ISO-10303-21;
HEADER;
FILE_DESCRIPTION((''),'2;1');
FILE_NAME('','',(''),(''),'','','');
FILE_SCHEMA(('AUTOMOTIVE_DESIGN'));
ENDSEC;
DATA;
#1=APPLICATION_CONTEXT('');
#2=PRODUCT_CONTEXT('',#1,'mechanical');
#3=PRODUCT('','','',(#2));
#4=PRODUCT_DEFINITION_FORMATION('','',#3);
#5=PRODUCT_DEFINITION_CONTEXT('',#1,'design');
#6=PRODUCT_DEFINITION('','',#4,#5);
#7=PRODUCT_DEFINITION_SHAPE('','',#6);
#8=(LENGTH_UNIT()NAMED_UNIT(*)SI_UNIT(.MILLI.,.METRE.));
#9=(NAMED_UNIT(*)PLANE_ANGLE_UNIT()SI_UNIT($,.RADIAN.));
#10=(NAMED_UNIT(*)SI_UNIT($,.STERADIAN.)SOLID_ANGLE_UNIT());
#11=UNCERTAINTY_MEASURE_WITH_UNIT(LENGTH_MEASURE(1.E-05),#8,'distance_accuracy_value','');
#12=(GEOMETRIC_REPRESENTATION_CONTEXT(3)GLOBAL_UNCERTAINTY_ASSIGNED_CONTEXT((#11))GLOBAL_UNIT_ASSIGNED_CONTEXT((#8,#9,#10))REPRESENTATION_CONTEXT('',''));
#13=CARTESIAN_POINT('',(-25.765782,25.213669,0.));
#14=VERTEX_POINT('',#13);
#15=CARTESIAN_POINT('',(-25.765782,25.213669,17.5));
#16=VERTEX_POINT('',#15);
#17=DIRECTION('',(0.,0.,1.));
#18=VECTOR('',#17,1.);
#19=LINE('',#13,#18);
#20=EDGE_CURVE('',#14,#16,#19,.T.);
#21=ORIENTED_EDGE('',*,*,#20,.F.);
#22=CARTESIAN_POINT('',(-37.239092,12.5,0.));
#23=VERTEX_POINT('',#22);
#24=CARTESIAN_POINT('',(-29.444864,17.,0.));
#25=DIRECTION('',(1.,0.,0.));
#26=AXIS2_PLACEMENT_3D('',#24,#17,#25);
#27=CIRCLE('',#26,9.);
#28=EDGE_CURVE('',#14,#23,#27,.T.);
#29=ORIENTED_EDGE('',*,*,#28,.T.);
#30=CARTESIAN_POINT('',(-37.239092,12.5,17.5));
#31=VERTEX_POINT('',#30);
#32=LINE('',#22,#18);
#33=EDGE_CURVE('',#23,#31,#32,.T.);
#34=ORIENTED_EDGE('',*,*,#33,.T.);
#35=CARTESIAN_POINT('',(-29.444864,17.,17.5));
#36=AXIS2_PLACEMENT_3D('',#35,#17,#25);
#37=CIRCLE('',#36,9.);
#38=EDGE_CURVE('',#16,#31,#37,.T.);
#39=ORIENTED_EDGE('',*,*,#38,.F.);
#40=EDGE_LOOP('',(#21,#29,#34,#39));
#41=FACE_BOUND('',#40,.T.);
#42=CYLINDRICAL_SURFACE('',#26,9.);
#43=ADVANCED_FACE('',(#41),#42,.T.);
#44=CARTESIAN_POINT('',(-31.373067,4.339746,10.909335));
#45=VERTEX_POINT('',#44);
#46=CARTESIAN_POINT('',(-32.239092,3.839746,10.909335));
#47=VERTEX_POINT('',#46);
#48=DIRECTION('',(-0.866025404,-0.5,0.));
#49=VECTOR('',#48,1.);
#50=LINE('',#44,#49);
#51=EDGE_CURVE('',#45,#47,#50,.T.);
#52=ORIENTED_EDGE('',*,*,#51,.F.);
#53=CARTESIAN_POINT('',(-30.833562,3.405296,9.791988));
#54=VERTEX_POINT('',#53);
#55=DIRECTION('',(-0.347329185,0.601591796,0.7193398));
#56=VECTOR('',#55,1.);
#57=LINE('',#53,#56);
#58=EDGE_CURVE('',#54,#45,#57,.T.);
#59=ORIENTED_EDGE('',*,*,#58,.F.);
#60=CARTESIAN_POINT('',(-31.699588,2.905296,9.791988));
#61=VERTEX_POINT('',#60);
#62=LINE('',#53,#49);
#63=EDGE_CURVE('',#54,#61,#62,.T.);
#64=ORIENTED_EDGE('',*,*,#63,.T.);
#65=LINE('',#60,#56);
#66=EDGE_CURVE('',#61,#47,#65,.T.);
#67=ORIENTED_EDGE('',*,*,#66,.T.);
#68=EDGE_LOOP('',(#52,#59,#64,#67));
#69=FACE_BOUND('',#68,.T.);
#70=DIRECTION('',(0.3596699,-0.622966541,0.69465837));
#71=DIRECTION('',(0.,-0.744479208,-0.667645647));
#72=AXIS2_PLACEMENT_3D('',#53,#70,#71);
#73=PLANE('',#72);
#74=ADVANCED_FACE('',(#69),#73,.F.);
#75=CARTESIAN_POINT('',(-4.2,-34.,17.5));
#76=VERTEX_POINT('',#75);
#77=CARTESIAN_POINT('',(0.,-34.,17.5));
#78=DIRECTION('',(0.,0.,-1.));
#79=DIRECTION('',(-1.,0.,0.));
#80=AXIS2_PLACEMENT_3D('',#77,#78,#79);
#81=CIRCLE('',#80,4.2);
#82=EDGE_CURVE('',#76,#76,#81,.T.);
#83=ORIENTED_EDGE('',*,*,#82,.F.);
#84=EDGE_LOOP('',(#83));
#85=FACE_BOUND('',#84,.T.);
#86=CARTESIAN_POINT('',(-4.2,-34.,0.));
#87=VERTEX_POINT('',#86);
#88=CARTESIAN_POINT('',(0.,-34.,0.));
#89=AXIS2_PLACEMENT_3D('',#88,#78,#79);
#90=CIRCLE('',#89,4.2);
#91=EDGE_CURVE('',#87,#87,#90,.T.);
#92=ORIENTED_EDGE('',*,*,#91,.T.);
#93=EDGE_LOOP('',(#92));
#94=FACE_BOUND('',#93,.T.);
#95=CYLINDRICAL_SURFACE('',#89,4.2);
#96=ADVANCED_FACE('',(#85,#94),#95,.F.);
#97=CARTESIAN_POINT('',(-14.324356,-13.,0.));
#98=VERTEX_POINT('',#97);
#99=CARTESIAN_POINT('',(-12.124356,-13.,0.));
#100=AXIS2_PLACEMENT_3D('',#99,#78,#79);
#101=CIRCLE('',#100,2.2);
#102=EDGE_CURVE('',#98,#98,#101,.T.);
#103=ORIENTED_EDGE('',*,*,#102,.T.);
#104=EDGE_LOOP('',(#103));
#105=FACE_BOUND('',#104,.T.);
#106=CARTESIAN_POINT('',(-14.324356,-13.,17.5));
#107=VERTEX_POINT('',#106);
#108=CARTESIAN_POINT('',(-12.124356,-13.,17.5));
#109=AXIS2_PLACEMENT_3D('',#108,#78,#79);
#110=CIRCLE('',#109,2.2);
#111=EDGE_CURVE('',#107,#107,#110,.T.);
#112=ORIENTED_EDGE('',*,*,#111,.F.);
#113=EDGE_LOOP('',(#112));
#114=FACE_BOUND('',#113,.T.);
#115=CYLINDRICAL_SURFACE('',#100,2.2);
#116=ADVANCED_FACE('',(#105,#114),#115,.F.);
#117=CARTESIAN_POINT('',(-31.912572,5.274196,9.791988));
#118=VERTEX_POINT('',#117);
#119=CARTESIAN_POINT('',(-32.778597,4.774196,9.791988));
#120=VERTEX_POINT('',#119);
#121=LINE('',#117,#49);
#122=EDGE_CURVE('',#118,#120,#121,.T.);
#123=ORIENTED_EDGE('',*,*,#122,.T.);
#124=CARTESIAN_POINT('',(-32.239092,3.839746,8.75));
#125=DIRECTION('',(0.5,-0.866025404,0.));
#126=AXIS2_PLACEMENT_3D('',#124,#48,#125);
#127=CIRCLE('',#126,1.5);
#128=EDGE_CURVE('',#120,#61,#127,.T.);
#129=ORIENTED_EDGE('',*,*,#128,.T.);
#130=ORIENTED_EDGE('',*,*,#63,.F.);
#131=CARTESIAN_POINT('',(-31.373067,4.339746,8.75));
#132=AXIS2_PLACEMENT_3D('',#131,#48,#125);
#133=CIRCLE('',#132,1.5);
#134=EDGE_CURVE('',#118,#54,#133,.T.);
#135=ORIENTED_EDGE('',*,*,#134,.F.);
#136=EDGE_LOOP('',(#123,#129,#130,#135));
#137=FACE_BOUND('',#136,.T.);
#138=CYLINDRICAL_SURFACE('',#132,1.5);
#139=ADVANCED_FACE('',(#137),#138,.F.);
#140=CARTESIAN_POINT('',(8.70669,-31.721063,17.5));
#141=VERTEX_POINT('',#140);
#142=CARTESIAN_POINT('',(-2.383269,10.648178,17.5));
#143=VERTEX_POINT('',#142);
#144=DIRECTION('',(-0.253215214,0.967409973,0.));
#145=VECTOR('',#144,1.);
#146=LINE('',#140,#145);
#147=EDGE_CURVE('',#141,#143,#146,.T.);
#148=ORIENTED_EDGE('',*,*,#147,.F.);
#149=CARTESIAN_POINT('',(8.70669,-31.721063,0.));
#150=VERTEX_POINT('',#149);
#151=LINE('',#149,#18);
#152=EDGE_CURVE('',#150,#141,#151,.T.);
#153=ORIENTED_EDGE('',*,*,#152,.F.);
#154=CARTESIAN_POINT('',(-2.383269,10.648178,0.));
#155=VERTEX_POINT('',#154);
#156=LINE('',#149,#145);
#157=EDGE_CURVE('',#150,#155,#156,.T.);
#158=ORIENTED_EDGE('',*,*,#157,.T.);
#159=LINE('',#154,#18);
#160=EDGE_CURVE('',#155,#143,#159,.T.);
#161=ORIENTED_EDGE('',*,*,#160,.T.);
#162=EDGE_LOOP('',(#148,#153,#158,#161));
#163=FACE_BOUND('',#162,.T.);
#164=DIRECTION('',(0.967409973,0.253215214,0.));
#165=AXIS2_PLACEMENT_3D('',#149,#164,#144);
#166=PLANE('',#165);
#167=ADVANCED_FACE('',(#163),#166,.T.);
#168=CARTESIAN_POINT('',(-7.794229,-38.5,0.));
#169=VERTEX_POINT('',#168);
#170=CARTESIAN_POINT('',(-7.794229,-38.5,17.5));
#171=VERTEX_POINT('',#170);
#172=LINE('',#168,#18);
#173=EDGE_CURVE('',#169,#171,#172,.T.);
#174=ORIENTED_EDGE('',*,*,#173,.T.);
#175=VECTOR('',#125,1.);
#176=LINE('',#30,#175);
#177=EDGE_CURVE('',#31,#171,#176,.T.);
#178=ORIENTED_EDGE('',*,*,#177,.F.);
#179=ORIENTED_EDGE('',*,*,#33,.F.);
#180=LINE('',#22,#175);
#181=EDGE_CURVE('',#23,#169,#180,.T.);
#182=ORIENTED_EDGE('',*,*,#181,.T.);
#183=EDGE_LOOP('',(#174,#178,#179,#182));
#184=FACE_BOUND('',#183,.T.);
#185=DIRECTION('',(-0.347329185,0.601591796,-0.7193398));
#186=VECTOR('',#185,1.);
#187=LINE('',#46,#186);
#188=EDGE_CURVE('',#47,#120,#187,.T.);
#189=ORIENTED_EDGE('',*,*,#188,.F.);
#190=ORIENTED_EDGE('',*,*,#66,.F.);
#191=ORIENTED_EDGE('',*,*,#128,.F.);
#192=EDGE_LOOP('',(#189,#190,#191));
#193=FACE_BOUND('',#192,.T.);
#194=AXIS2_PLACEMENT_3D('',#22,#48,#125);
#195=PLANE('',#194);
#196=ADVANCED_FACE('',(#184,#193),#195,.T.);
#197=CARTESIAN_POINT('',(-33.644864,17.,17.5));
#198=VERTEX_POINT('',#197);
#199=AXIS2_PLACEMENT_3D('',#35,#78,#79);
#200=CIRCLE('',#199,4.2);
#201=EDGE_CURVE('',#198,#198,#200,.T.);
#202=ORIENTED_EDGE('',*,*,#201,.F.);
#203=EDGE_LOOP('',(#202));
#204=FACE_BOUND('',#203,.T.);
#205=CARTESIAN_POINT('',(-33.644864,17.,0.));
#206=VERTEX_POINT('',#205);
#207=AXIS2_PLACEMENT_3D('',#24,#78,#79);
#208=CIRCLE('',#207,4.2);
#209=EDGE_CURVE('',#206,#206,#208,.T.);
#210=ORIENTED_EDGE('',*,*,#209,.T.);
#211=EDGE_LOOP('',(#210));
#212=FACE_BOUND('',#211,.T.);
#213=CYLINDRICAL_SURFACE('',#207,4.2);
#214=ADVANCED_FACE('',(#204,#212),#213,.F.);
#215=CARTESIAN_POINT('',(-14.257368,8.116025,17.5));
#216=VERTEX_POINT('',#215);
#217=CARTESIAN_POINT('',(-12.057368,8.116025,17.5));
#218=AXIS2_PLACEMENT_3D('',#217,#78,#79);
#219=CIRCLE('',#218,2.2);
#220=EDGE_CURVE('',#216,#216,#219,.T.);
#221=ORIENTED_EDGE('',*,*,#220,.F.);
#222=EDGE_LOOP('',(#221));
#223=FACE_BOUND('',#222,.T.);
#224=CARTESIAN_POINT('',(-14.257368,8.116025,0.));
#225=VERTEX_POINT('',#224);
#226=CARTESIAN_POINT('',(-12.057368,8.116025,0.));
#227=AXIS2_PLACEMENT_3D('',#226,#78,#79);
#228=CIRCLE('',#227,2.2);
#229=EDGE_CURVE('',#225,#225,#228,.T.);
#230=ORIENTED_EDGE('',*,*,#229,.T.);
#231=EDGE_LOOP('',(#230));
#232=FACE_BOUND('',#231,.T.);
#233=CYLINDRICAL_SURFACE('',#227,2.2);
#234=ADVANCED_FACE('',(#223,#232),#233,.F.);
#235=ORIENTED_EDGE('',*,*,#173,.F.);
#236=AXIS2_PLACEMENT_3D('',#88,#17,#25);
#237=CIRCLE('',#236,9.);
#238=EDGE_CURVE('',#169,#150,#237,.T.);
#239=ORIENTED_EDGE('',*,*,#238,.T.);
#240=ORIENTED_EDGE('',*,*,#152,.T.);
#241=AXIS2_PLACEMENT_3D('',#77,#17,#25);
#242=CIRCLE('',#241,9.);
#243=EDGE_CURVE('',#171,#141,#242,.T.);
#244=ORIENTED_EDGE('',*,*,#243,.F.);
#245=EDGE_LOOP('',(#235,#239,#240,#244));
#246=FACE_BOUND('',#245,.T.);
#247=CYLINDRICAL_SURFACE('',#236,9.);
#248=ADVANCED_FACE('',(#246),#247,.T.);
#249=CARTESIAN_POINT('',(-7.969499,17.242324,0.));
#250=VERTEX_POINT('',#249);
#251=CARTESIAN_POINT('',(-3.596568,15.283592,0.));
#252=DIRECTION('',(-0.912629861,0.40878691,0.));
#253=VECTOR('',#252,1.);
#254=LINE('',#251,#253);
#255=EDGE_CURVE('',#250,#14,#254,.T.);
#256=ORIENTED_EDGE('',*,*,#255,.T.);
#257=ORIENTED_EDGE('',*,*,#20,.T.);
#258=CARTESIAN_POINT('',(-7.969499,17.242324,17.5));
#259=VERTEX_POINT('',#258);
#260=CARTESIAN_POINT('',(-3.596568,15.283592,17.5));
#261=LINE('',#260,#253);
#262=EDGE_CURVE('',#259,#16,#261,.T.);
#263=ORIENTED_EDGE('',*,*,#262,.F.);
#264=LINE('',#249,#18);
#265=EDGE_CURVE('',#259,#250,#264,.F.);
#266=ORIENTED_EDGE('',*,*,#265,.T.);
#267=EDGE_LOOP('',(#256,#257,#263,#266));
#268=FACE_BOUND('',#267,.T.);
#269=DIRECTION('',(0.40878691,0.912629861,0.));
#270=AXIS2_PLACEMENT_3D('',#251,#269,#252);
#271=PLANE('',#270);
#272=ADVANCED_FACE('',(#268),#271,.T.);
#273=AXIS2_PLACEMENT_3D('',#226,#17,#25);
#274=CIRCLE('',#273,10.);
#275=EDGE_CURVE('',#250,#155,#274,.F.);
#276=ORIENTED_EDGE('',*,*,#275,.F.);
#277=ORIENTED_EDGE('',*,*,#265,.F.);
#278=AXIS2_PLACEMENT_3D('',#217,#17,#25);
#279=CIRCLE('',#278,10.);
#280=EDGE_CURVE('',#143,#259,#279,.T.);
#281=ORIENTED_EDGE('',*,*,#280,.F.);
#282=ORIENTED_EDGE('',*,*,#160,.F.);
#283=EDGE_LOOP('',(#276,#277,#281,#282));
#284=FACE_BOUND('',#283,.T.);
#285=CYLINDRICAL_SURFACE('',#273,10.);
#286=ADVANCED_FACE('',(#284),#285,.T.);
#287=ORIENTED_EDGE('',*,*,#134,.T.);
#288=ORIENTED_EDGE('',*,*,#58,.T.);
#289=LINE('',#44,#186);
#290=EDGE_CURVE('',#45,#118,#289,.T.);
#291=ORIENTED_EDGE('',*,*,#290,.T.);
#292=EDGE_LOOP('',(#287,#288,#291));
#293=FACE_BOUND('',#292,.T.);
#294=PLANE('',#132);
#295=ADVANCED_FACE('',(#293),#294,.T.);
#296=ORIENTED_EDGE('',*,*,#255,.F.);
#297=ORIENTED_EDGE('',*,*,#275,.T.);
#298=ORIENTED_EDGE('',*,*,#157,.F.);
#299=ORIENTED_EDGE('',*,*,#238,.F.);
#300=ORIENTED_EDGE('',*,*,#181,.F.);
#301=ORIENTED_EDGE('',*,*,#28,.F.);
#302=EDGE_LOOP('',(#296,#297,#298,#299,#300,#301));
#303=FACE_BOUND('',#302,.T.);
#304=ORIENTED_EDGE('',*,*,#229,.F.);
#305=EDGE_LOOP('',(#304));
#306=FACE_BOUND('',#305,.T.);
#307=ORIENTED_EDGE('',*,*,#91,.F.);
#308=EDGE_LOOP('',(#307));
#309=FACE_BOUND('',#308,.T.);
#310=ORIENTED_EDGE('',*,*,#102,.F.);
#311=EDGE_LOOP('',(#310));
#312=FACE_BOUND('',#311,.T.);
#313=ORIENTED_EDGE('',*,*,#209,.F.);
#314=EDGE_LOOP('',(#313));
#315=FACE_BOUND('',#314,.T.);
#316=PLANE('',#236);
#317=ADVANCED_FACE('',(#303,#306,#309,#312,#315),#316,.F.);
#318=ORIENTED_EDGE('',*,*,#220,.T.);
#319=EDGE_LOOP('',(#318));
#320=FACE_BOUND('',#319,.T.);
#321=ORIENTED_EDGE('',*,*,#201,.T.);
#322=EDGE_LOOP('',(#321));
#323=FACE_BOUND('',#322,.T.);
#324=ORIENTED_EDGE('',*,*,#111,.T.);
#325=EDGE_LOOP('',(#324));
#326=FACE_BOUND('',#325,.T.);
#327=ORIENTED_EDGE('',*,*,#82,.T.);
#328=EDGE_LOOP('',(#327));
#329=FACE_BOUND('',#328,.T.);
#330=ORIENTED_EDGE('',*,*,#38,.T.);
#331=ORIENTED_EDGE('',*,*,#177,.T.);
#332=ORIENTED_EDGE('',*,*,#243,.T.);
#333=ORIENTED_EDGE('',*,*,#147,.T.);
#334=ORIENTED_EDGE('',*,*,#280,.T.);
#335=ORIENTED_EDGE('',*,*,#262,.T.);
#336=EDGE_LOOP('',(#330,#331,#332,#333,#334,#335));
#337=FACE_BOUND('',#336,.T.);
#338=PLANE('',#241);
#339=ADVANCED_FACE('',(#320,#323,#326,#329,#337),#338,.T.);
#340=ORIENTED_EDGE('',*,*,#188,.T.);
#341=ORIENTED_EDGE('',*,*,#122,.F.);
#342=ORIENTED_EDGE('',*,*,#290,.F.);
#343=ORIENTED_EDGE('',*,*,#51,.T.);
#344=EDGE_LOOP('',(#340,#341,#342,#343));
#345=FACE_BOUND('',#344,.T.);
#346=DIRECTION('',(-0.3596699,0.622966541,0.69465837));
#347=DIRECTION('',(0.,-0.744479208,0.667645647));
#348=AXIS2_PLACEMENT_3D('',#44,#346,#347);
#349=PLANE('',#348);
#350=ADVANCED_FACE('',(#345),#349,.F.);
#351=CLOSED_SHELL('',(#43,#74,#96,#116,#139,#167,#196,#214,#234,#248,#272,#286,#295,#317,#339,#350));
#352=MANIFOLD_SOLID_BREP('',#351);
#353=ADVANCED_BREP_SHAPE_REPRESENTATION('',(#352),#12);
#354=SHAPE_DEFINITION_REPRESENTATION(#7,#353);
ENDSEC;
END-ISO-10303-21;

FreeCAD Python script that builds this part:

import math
import FreeCAD as App
import Part
import Sketcher
Q = App.Units.Quantity


def edges_at(feature, points):
    """Names of the edges that pass closest to the given points."""
    edges = feature.Shape.Edges
    near = lambda p: min(range(len(edges)), key=lambda i: edges[i].distToShape(Part.Vertex(*p))[0])
    return sorted({f"Edge{near(p) + 1}" for p in points})

doc = App.newDocument("Part")
body = doc.addObject("PartDesign::Body", "Body")

# Sketch on XY plane
sketch1 = body.newObject("Sketcher::SketchObject", "Sketch")
sketch1.AttachmentSupport = (doc.getObject("XY_Plane"), [""])
sketch1.MapMode = "FlatFace"
sketch1.AttachmentOffset = App.Placement(App.Vector(0, 0, 17.5), App.Rotation())
sketch1.addGeometry([
    Part.LineSegment(App.Vector(9, -32, 0), App.Vector(-4, 15, 0)),  # 0
    Part.LineSegment(App.Vector(-4, 15, 0), App.Vector(-26, 25, 0)),  # 1
    Part.ArcOfCircle(Part.Circle(App.Vector(-29, 17, 0), App.Vector(0, 0, 1), 9), math.radians(66), math.radians(210)),  # 2
    Part.LineSegment(App.Vector(-37, 12, 0), App.Vector(-8, -38, 0)),  # 3
    Part.ArcOfCircle(Part.Circle(App.Vector(0, -34, 0), App.Vector(0, 0, 1), 9), math.radians(-150), math.radians(15)),  # 4
], False)
sketch1.addConstraint([
    Sketcher.Constraint("Coincident", 0, 2, 1, 1),
    Sketcher.Constraint("Tangent", 1, 2, 2, 1),
    Sketcher.Constraint("Tangent", 2, 2, 3, 1),
    Sketcher.Constraint("Tangent", 3, 2, 4, 1),
    Sketcher.Constraint("Tangent", 4, 2, 0, 1),
    Sketcher.Constraint("Equal", 2, 4),
    Sketcher.Constraint("PointOnObject", 4, 3, -2),
    Sketcher.Constraint("Radius", 2, 9.0),
    Sketcher.Constraint("Angle", 3, Q("-60 deg")),
    Sketcher.Constraint("DistanceY", -1, 1, 2, 3, 17.0),
    Sketcher.Constraint("DistanceY", 4, 3, -1, 1, 34.0),
    Sketcher.Constraint("DistanceX", 1, 2, -1, 1, 25.765782),
    Sketcher.Constraint("DistanceX", -1, 1, 4, 2, 8.70669),
])
pad1 = body.newObject("PartDesign::Pad", "Pad")
pad1.Profile = sketch1
pad1.Length = 17.5
pad1.Reversed = True

# Sketch on an angled plane
sketch2 = body.newObject("Sketcher::SketchObject", "Sketch001")
sketch2.Placement = App.Placement(App.Vector(-22.51666, -13, 0), App.Rotation(App.Vector(0, 0, 1), App.Vector(-0.5, 0.866025404, 0), App.Vector(-0.866025404, -0.5, 0), "ZXY"))
sketch2.addGeometry([
    Part.LineSegment(App.Vector(9.8, 18.4, 0), App.Vector(10.9, 19.4, 0)),
    Part.LineSegment(App.Vector(10.9, 19.4, 0), App.Vector(9.8, 20.5, 0)),
    Part.ArcOfCircle(Part.Circle(App.Vector(8.8, 19.4, 0), App.Vector(0, 0, 1), 1.5), math.radians(46), math.radians(314)),
], False)
sketch2.addConstraint([
    Sketcher.Constraint("Coincident", 0, 2, 1, 1),
    Sketcher.Constraint("Tangent", 1, 2, 2, 1),
    Sketcher.Constraint("Tangent", 2, 2, 0, 1),
    Sketcher.Constraint("Horizontal", 2, 3, 0, 2),
    Sketcher.Constraint("Radius", 2, 1.5),
    Sketcher.Constraint("Angle", 0, Q("44 deg")),
    Sketcher.Constraint("DistanceX", -1, 1, 2, 3, 8.75),
    Sketcher.Constraint("DistanceY", -1, 1, 2, 3, 19.444864),
])
pocket1 = body.newObject("PartDesign::Pocket", "Pocket")
pocket1.Profile = sketch2
pocket1.Length = 1

# Sketch on XY plane
sketch3 = body.newObject("Sketcher::SketchObject", "Sketch002")
sketch3.AttachmentSupport = (doc.getObject("XY_Plane"), [""])
sketch3.MapMode = "FlatFace"
sketch3.addGeometry(Part.Circle(App.Vector(-12.1, 8.1, 0), App.Vector(0, 0, 1), 2.2), False)
sketch3.addConstraint([
    Sketcher.Constraint("Diameter", 0, 4.4),
    Sketcher.Constraint("DistanceX", 0, 3, -1, 1, 12.057368),
    Sketcher.Constraint("DistanceY", -1, 1, 0, 3, 8.116025),
])
doc.recompute()
hole = body.newObject("PartDesign::Hole", "Hole")
hole.Profile = sketch3
hole.ThreadType = "None"
hole.Diameter = 4.4
hole.DepthType = "ThroughAll"
hole.Reversed = True

# Sketch on XY plane
sketch4 = body.newObject("Sketcher::SketchObject", "Sketch003")
sketch4.AttachmentSupport = (doc.getObject("XY_Plane"), [""])
sketch4.MapMode = "FlatFace"
sketch4.addGeometry(Part.Circle(App.Vector(-12.1, -13, 0), App.Vector(0, 0, 1), 2.2), False)
sketch4.addConstraint([
    Sketcher.Constraint("Diameter", 0, 4.4),
    Sketcher.Constraint("DistanceY", 0, 3, -1, 1, 13.0),
    Sketcher.Constraint("DistanceX", 0, 3, -1, 1, 12.124356),
])
doc.recompute()
hole2 = body.newObject("PartDesign::Hole", "Hole001")
hole2.Profile = sketch4
hole2.ThreadType = "None"
hole2.Diameter = 4.4
hole2.DepthType = "ThroughAll"
hole2.Reversed = True

# Sketch on XY plane
sketch5 = body.newObject("Sketcher::SketchObject", "Sketch004")
sketch5.AttachmentSupport = (doc.getObject("XY_Plane"), [""])
sketch5.MapMode = "FlatFace"
sketch5.addGeometry(Part.Circle(App.Vector(0, -34, 0), App.Vector(0, 0, 1), 4.2), False)
sketch5.addConstraint([
    Sketcher.Constraint("PointOnObject", 0, 3, -2),
    Sketcher.Constraint("Diameter", 0, 8.4),
    Sketcher.Constraint("DistanceY", 0, 3, -1, 1, 34.0),
])
doc.recompute()
hole3 = body.newObject("PartDesign::Hole", "Hole002")
hole3.Profile = sketch5
hole3.ThreadType = "None"
hole3.Diameter = 8.4
hole3.DepthType = "ThroughAll"
hole3.Reversed = True

# Sketch on XY plane
sketch6 = body.newObject("Sketcher::SketchObject", "Sketch005")
sketch6.AttachmentSupport = (doc.getObject("XY_Plane"), [""])
sketch6.MapMode = "FlatFace"
sketch6.addGeometry(Part.Circle(App.Vector(-29.4, 17, 0), App.Vector(0, 0, 1), 4.2), False)
sketch6.addConstraint([
    Sketcher.Constraint("Diameter", 0, 8.4),
    Sketcher.Constraint("DistanceY", -1, 1, 0, 3, 17.0),
    Sketcher.Constraint("DistanceX", 0, 3, -1, 1, 29.444864),
])
doc.recompute()
hole4 = body.newObject("PartDesign::Hole", "Hole003")
hole4.Profile = sketch6
hole4.ThreadType = "None"
hole4.Diameter = 8.4
hole4.DepthType = "ThroughAll"
hole4.Reversed = True
doc.recompute()

fillet = body.newObject("PartDesign::Fillet", "Fillet")
fillet.Base = (hole4, edges_at(hole4, [(-3.597, 15.284, 8.75)]))
fillet.Radius = 10

doc.recompute()
